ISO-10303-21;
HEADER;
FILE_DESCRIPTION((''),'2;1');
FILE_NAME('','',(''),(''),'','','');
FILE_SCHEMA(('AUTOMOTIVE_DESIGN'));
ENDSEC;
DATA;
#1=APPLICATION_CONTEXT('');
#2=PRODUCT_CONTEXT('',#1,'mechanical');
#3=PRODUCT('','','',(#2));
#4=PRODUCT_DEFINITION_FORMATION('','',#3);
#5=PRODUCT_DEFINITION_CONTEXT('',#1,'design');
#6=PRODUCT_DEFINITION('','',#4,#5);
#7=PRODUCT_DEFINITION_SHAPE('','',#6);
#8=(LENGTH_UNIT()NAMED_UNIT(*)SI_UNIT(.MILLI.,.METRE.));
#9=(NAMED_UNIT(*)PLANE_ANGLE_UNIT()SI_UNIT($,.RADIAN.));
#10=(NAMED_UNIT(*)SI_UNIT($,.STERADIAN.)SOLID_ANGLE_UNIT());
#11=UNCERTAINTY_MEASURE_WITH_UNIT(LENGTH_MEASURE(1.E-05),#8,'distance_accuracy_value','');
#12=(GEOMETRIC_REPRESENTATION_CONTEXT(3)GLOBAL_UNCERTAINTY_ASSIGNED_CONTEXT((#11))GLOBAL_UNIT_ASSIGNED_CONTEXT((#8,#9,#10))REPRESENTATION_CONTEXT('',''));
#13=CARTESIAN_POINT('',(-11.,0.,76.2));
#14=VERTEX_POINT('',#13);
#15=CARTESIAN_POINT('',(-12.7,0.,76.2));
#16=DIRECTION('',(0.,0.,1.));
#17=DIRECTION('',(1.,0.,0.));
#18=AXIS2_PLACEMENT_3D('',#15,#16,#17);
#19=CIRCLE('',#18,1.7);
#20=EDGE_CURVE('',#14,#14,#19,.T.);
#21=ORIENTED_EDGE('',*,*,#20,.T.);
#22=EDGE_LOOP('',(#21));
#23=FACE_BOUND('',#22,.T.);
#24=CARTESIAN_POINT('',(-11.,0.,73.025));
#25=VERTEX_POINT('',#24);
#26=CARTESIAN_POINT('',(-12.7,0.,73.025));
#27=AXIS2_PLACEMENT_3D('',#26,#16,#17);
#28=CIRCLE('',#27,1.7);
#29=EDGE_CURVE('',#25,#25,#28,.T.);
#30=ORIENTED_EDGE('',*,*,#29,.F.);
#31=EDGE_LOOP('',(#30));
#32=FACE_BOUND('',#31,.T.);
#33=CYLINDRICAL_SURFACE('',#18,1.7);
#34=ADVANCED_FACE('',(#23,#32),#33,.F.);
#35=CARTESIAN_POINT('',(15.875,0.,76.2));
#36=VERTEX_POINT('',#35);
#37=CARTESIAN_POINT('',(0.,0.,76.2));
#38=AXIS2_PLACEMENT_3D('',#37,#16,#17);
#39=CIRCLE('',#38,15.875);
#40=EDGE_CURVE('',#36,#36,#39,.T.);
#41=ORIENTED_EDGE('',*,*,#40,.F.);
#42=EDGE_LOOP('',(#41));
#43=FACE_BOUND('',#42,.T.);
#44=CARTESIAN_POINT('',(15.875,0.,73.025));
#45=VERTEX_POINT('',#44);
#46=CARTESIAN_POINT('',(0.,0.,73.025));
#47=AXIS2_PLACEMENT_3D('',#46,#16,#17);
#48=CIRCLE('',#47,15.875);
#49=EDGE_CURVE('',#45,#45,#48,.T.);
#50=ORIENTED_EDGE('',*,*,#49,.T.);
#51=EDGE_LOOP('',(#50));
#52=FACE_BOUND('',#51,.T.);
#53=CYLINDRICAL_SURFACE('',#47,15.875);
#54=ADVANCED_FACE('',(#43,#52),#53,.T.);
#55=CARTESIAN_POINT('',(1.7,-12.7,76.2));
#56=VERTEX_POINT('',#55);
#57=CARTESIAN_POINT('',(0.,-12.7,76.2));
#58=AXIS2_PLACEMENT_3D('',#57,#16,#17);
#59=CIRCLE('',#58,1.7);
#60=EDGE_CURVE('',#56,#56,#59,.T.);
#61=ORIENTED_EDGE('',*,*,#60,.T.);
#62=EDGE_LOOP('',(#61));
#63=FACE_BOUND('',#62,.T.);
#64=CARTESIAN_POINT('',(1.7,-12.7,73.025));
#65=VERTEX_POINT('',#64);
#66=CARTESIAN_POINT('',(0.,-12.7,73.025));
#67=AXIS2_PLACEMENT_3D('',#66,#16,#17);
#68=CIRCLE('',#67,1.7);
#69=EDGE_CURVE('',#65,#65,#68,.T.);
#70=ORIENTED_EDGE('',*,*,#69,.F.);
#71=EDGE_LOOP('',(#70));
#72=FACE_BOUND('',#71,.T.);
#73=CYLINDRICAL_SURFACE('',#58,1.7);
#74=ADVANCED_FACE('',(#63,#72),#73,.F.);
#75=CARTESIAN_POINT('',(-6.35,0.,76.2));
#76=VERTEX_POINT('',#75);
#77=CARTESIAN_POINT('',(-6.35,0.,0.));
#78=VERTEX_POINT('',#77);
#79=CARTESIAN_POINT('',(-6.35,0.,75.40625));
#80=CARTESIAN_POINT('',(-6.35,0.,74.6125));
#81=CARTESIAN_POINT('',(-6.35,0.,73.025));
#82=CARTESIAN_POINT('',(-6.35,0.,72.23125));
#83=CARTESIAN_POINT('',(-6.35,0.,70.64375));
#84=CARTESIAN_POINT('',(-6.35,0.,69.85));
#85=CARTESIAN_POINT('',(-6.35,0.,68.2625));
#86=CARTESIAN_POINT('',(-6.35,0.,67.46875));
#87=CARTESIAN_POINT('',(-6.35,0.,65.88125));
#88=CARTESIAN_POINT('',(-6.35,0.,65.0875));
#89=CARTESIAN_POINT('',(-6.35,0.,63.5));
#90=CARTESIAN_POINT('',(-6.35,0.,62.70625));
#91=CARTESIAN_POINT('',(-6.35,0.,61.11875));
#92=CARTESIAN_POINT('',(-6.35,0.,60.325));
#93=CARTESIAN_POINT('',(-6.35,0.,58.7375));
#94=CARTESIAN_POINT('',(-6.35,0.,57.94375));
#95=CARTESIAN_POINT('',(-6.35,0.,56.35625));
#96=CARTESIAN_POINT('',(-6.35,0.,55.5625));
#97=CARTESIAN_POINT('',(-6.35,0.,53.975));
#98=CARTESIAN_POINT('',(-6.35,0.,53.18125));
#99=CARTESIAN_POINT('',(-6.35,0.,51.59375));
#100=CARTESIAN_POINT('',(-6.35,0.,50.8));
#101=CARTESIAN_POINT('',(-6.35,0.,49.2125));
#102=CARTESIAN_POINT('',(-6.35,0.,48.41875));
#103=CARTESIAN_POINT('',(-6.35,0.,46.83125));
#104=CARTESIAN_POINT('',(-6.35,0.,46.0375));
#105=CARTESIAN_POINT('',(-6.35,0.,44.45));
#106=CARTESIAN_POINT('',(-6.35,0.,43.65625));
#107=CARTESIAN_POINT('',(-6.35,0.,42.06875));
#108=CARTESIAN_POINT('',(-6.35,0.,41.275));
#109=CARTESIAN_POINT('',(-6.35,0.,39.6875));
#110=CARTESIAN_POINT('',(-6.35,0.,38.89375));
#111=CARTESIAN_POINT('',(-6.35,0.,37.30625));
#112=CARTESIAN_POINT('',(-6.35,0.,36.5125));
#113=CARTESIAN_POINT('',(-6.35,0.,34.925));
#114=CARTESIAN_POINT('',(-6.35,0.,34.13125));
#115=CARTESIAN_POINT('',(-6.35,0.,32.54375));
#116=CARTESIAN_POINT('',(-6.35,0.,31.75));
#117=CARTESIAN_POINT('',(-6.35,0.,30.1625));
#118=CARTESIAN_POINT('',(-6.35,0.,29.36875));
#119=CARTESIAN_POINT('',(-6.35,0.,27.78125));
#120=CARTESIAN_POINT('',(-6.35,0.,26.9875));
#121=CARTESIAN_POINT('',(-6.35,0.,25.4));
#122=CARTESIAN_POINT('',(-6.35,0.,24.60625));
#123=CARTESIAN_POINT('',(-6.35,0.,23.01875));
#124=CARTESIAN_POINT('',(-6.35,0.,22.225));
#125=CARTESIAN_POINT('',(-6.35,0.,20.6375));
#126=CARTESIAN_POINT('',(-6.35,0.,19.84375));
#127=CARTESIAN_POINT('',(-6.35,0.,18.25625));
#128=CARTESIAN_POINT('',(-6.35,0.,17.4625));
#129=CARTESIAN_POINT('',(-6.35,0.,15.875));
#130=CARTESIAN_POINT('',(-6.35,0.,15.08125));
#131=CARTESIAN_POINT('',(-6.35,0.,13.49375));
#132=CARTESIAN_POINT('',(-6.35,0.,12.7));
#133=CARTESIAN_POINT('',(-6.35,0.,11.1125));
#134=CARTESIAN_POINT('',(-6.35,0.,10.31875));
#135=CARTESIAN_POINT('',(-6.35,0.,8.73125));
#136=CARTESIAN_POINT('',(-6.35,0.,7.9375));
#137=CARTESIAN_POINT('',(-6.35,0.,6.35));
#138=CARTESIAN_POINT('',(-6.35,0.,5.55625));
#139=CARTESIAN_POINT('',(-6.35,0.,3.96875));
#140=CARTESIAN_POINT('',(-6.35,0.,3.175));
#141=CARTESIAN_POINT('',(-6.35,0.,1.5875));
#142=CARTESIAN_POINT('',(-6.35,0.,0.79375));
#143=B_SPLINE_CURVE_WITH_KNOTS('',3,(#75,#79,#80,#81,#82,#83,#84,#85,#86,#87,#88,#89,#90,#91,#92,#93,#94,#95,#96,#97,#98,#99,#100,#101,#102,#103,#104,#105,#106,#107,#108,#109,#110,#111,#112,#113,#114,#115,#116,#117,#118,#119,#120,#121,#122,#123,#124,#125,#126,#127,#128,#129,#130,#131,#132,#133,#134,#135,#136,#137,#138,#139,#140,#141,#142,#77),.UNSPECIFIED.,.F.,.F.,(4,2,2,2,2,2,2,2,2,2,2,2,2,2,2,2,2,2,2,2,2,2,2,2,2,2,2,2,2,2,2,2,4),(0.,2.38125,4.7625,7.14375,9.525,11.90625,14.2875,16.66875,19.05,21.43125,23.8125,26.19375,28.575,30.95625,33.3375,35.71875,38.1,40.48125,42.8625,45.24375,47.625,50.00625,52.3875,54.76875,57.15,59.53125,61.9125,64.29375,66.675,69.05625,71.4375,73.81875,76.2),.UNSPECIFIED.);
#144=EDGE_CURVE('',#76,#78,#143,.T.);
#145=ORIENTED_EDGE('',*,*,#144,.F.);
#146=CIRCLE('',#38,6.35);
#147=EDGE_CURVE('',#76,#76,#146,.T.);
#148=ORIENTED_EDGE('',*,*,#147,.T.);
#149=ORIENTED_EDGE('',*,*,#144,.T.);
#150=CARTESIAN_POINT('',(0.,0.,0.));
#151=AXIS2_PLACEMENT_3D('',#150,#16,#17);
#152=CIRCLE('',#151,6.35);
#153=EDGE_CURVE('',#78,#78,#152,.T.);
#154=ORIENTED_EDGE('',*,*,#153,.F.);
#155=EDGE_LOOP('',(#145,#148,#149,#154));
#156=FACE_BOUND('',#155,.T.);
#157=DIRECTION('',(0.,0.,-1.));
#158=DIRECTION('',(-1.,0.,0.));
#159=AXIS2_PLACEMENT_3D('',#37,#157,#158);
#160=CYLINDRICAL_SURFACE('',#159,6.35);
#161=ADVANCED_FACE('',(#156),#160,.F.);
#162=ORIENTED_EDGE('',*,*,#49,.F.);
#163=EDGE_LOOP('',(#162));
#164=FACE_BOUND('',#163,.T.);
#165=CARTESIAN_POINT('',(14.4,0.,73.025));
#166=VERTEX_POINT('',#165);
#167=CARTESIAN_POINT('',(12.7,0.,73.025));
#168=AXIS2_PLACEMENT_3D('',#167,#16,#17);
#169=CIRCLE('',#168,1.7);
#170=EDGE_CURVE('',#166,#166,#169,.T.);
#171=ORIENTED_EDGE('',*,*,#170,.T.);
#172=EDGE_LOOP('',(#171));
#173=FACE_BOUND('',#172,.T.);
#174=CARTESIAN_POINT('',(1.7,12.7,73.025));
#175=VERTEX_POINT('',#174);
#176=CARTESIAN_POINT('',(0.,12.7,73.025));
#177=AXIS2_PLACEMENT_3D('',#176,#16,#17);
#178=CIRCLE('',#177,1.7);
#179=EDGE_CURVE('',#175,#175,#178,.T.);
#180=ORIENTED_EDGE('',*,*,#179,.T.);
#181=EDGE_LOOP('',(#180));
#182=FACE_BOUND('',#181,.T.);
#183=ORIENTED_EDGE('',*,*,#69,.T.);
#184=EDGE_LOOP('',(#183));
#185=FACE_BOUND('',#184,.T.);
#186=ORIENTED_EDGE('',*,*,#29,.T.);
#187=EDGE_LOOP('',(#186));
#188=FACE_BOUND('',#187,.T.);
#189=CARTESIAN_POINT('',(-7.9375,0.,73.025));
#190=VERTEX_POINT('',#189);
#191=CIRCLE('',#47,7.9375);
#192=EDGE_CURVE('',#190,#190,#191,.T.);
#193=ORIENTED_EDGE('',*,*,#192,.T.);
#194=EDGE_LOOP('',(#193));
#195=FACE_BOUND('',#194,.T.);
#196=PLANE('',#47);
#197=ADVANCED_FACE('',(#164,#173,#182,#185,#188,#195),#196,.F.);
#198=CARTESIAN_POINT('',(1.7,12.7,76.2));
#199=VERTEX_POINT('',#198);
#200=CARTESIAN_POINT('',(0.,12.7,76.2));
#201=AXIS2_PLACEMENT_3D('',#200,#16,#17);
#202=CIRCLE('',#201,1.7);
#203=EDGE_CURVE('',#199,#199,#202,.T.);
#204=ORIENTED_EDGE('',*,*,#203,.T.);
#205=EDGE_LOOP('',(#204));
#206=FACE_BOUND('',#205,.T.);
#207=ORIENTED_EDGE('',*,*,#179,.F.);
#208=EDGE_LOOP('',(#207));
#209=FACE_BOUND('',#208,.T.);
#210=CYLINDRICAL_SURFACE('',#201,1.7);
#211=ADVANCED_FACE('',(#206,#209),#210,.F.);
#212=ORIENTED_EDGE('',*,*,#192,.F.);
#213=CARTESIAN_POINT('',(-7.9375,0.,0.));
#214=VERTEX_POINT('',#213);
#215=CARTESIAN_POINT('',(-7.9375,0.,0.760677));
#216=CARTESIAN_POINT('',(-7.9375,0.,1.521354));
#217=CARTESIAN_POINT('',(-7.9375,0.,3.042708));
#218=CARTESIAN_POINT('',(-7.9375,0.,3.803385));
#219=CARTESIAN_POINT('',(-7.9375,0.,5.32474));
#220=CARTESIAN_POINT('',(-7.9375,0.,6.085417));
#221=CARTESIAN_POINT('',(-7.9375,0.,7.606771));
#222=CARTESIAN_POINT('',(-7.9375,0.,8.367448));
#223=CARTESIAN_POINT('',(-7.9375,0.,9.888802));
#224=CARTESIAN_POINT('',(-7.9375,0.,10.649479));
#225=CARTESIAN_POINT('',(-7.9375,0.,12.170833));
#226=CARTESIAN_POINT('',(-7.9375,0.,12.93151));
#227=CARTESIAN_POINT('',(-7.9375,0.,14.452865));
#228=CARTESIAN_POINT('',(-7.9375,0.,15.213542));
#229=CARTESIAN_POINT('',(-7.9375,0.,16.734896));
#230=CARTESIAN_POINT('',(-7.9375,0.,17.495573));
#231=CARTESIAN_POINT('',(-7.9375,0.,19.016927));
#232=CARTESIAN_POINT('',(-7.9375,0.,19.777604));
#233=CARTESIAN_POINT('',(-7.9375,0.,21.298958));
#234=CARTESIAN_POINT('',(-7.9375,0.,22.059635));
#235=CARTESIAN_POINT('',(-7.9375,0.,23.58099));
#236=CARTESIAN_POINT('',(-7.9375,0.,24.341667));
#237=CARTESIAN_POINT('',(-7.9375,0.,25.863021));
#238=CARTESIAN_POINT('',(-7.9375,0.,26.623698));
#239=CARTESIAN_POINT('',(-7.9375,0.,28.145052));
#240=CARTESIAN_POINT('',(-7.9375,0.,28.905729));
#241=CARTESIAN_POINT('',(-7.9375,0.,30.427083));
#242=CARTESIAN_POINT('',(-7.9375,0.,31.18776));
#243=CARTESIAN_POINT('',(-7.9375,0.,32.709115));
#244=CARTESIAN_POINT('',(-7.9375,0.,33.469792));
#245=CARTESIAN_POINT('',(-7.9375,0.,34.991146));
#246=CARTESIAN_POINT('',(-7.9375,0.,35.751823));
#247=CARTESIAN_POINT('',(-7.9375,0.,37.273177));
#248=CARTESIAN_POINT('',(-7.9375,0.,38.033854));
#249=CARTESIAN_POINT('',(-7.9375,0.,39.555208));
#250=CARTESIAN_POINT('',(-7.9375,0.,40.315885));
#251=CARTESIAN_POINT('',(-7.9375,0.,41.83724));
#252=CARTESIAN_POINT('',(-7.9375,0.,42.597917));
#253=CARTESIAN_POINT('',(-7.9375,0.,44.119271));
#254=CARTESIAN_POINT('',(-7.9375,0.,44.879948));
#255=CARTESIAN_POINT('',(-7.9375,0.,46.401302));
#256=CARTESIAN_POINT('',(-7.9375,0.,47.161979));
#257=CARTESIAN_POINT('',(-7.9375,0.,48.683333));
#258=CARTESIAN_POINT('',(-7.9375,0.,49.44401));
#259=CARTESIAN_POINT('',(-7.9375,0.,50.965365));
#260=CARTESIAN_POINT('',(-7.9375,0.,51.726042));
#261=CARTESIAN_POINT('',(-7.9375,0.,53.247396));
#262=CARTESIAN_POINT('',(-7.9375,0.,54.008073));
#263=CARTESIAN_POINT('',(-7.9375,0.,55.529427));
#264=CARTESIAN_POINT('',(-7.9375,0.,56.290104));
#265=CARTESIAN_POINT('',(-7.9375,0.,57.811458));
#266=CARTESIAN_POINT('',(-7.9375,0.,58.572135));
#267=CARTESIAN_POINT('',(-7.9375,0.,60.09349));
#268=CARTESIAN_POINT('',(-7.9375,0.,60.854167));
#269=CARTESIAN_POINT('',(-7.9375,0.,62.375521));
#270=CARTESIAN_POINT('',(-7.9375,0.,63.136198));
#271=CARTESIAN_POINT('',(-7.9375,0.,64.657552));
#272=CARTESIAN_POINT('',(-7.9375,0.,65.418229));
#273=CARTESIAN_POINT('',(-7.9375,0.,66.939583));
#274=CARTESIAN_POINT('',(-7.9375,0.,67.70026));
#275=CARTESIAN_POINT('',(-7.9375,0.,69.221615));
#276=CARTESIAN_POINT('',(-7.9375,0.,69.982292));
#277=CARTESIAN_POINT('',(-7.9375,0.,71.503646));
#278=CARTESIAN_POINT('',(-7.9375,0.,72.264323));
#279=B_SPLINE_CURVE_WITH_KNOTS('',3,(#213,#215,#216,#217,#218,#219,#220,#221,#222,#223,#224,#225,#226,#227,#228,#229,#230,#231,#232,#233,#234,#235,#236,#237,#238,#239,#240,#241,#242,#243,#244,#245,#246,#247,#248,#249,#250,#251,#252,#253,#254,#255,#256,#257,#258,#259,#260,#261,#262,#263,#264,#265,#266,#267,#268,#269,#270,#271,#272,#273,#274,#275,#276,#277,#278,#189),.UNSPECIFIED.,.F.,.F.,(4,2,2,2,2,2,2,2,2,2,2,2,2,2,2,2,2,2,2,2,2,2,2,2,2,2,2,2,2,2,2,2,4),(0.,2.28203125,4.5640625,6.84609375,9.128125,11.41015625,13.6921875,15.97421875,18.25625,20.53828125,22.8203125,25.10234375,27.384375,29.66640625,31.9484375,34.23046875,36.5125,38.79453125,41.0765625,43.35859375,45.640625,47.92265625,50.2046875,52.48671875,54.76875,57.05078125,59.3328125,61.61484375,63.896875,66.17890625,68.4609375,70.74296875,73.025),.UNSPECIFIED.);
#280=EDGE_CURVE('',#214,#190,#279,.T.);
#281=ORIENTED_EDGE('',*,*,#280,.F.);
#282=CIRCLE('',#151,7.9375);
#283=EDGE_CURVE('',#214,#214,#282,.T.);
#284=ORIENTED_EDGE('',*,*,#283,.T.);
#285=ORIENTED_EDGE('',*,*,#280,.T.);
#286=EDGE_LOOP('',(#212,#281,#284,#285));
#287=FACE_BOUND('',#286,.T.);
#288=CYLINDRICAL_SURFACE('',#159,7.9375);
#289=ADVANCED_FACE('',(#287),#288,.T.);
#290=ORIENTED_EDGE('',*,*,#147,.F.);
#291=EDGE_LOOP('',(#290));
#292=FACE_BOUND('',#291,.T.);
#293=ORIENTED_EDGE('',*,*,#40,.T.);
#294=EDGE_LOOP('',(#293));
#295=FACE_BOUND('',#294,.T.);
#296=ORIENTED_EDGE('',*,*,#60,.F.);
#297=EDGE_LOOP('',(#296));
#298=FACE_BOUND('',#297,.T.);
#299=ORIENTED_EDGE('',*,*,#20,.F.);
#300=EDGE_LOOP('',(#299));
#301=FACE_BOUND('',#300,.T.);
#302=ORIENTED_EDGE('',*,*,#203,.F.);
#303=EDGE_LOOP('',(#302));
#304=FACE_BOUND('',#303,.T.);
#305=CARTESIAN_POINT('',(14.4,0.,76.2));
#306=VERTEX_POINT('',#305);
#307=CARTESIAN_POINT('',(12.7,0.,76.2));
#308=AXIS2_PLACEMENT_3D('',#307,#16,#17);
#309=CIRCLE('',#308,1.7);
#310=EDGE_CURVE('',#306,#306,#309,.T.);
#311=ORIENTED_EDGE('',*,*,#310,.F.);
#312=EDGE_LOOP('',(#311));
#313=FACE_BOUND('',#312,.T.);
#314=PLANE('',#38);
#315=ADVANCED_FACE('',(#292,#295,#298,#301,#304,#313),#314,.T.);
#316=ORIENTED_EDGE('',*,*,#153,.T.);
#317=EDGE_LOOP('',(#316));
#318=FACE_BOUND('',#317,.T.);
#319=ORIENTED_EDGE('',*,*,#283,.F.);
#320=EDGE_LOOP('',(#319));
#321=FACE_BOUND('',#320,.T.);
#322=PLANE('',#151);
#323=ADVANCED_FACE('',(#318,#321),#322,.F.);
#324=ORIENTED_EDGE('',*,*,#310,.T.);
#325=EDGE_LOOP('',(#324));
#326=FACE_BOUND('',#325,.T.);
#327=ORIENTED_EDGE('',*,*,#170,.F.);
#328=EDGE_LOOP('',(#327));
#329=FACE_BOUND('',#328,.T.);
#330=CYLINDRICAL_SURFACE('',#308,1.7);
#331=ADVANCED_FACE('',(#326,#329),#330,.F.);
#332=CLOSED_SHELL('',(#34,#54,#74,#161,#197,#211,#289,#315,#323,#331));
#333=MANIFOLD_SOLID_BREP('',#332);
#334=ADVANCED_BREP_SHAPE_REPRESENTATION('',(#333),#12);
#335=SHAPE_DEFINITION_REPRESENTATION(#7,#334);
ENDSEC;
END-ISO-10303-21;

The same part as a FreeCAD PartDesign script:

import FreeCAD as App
import Part
import Sketcher

V = App.Vector
Q = App.Units.Quantity

doc = App.newDocument("Part")
body = doc.addObject("PartDesign::Body", "Body")

# Sketch on XY plane
sketch1 = doc.addObject("Sketcher::SketchObject", "Sketch")
body.addObject(sketch1)
sketch1.AttachmentSupport = (doc.XY_Plane, [""])
sketch1.MapMode = "FlatFace"
sketch1.addGeometry(Part.Circle(V(0, 0, 0), V(0, 0, 1), 7.9375), False)
sketch1.addGeometry(Part.Circle(V(0, 0, 0), V(0, 0, 1), 6.35), False)
sketch1.addConstraint(Sketcher.Constraint("Coincident", 0, 3, -1, 1))
sketch1.addConstraint(Sketcher.Constraint("Coincident", 1, 3, -1, 1))
sketch1.addConstraint(Sketcher.Constraint("Diameter", 1, Q("0.5 in")))
sketch1.addConstraint(Sketcher.Constraint("Diameter", 0, Q("0.625 in")))
pad1 = doc.addObject("PartDesign::Pad", "Pad")
body.addObject(pad1)
pad1.Profile = sketch1
pad1.Length = Q("3 in")

# Sketch on XY plane
sketch2 = doc.addObject("Sketcher::SketchObject", "Sketch001")
body.addObject(sketch2)
sketch2.AttachmentSupport = (doc.XY_Plane, [""])
sketch2.MapMode = "FlatFace"
sketch2.AttachmentOffset = App.Placement(V(0, 0, 2.875 * 25.4), App.Rotation())
sketch2.addGeometry(Part.Circle(V(0, 0, 0), V(0, 0, 1), 15.875), False)
sketch2.addGeometry(Part.Circle(V(0, 0, 0), V(0, 0, 1), 6.35), False)
sketch2.addConstraint(Sketcher.Constraint("Coincident", 0, 3, -1, 1))
sketch2.addConstraint(Sketcher.Constraint("Coincident", 1, 3, -1, 1))
sketch2.addConstraint(Sketcher.Constraint("Diameter", 1, Q("0.5 in")))
sketch2.addConstraint(Sketcher.Constraint("Diameter", 0, Q("1.25 in")))
pad2 = doc.addObject("PartDesign::Pad", "Pad001")
body.addObject(pad2)
pad2.Profile = sketch2
pad2.Length = Q("0.125 in")

# Sketch on XY plane
sketch3 = doc.addObject("Sketcher::SketchObject", "Sketch002")
body.addObject(sketch3)
sketch3.AttachmentSupport = (doc.XY_Plane, [""])
sketch3.MapMode = "FlatFace"
sketch3.AttachmentOffset = App.Placement(V(0, 0, 3 * 25.4), App.Rotation())
sketch3.addGeometry(Part.Circle(V(0, 12.7, 0), V(0, 0, 1), 1.7), False)
sketch3.addGeometry(Part.Circle(V(0, -12.7, 0), V(0, 0, 1), 1.7), False)
sketch3.addGeometry(Part.Circle(V(12.7, 0, 0), V(0, 0, 1), 1.7), False)
sketch3.addGeometry(Part.Circle(V(-12.7, 0, 0), V(0, 0, 1), 1.7), False)
sketch3.addConstraint(Sketcher.Constraint("Equal", 0, 1))
sketch3.addConstraint(Sketcher.Constraint("Equal", 1, 2))
sketch3.addConstraint(Sketcher.Constraint("Equal", 2, 3))
sketch3.addConstraint(Sketcher.Constraint("Symmetric", 0, 3, 1, 3, -1, 1))
sketch3.addConstraint(Sketcher.Constraint("Symmetric", 2, 3, 3, 3, -1, 1))
sketch3.addConstraint(Sketcher.Constraint("PointOnObject", 0, 3, -2))
sketch3.addConstraint(Sketcher.Constraint("PointOnObject", 2, 3, -1))
sketch3.addConstraint(Sketcher.Constraint("DistanceY", 1, 3, 0, 3, Q("1 in")))
sketch3.addConstraint(Sketcher.Constraint("DistanceX", 3, 3, 2, 3, Q("1 in")))
sketch3.addConstraint(Sketcher.Constraint("Diameter", 0, 3.4))
doc.recompute()
hole = doc.addObject("PartDesign::Hole", "Hole")
body.addObject(hole)
hole.Profile = sketch3
hole.ThreadType = "None"
hole.Diameter = 3.4
hole.DepthType = "Dimension"
hole.Depth = 4
hole.DrillPoint = "Angled"
hole.DrillPointAngle = 118

doc.recompute()
